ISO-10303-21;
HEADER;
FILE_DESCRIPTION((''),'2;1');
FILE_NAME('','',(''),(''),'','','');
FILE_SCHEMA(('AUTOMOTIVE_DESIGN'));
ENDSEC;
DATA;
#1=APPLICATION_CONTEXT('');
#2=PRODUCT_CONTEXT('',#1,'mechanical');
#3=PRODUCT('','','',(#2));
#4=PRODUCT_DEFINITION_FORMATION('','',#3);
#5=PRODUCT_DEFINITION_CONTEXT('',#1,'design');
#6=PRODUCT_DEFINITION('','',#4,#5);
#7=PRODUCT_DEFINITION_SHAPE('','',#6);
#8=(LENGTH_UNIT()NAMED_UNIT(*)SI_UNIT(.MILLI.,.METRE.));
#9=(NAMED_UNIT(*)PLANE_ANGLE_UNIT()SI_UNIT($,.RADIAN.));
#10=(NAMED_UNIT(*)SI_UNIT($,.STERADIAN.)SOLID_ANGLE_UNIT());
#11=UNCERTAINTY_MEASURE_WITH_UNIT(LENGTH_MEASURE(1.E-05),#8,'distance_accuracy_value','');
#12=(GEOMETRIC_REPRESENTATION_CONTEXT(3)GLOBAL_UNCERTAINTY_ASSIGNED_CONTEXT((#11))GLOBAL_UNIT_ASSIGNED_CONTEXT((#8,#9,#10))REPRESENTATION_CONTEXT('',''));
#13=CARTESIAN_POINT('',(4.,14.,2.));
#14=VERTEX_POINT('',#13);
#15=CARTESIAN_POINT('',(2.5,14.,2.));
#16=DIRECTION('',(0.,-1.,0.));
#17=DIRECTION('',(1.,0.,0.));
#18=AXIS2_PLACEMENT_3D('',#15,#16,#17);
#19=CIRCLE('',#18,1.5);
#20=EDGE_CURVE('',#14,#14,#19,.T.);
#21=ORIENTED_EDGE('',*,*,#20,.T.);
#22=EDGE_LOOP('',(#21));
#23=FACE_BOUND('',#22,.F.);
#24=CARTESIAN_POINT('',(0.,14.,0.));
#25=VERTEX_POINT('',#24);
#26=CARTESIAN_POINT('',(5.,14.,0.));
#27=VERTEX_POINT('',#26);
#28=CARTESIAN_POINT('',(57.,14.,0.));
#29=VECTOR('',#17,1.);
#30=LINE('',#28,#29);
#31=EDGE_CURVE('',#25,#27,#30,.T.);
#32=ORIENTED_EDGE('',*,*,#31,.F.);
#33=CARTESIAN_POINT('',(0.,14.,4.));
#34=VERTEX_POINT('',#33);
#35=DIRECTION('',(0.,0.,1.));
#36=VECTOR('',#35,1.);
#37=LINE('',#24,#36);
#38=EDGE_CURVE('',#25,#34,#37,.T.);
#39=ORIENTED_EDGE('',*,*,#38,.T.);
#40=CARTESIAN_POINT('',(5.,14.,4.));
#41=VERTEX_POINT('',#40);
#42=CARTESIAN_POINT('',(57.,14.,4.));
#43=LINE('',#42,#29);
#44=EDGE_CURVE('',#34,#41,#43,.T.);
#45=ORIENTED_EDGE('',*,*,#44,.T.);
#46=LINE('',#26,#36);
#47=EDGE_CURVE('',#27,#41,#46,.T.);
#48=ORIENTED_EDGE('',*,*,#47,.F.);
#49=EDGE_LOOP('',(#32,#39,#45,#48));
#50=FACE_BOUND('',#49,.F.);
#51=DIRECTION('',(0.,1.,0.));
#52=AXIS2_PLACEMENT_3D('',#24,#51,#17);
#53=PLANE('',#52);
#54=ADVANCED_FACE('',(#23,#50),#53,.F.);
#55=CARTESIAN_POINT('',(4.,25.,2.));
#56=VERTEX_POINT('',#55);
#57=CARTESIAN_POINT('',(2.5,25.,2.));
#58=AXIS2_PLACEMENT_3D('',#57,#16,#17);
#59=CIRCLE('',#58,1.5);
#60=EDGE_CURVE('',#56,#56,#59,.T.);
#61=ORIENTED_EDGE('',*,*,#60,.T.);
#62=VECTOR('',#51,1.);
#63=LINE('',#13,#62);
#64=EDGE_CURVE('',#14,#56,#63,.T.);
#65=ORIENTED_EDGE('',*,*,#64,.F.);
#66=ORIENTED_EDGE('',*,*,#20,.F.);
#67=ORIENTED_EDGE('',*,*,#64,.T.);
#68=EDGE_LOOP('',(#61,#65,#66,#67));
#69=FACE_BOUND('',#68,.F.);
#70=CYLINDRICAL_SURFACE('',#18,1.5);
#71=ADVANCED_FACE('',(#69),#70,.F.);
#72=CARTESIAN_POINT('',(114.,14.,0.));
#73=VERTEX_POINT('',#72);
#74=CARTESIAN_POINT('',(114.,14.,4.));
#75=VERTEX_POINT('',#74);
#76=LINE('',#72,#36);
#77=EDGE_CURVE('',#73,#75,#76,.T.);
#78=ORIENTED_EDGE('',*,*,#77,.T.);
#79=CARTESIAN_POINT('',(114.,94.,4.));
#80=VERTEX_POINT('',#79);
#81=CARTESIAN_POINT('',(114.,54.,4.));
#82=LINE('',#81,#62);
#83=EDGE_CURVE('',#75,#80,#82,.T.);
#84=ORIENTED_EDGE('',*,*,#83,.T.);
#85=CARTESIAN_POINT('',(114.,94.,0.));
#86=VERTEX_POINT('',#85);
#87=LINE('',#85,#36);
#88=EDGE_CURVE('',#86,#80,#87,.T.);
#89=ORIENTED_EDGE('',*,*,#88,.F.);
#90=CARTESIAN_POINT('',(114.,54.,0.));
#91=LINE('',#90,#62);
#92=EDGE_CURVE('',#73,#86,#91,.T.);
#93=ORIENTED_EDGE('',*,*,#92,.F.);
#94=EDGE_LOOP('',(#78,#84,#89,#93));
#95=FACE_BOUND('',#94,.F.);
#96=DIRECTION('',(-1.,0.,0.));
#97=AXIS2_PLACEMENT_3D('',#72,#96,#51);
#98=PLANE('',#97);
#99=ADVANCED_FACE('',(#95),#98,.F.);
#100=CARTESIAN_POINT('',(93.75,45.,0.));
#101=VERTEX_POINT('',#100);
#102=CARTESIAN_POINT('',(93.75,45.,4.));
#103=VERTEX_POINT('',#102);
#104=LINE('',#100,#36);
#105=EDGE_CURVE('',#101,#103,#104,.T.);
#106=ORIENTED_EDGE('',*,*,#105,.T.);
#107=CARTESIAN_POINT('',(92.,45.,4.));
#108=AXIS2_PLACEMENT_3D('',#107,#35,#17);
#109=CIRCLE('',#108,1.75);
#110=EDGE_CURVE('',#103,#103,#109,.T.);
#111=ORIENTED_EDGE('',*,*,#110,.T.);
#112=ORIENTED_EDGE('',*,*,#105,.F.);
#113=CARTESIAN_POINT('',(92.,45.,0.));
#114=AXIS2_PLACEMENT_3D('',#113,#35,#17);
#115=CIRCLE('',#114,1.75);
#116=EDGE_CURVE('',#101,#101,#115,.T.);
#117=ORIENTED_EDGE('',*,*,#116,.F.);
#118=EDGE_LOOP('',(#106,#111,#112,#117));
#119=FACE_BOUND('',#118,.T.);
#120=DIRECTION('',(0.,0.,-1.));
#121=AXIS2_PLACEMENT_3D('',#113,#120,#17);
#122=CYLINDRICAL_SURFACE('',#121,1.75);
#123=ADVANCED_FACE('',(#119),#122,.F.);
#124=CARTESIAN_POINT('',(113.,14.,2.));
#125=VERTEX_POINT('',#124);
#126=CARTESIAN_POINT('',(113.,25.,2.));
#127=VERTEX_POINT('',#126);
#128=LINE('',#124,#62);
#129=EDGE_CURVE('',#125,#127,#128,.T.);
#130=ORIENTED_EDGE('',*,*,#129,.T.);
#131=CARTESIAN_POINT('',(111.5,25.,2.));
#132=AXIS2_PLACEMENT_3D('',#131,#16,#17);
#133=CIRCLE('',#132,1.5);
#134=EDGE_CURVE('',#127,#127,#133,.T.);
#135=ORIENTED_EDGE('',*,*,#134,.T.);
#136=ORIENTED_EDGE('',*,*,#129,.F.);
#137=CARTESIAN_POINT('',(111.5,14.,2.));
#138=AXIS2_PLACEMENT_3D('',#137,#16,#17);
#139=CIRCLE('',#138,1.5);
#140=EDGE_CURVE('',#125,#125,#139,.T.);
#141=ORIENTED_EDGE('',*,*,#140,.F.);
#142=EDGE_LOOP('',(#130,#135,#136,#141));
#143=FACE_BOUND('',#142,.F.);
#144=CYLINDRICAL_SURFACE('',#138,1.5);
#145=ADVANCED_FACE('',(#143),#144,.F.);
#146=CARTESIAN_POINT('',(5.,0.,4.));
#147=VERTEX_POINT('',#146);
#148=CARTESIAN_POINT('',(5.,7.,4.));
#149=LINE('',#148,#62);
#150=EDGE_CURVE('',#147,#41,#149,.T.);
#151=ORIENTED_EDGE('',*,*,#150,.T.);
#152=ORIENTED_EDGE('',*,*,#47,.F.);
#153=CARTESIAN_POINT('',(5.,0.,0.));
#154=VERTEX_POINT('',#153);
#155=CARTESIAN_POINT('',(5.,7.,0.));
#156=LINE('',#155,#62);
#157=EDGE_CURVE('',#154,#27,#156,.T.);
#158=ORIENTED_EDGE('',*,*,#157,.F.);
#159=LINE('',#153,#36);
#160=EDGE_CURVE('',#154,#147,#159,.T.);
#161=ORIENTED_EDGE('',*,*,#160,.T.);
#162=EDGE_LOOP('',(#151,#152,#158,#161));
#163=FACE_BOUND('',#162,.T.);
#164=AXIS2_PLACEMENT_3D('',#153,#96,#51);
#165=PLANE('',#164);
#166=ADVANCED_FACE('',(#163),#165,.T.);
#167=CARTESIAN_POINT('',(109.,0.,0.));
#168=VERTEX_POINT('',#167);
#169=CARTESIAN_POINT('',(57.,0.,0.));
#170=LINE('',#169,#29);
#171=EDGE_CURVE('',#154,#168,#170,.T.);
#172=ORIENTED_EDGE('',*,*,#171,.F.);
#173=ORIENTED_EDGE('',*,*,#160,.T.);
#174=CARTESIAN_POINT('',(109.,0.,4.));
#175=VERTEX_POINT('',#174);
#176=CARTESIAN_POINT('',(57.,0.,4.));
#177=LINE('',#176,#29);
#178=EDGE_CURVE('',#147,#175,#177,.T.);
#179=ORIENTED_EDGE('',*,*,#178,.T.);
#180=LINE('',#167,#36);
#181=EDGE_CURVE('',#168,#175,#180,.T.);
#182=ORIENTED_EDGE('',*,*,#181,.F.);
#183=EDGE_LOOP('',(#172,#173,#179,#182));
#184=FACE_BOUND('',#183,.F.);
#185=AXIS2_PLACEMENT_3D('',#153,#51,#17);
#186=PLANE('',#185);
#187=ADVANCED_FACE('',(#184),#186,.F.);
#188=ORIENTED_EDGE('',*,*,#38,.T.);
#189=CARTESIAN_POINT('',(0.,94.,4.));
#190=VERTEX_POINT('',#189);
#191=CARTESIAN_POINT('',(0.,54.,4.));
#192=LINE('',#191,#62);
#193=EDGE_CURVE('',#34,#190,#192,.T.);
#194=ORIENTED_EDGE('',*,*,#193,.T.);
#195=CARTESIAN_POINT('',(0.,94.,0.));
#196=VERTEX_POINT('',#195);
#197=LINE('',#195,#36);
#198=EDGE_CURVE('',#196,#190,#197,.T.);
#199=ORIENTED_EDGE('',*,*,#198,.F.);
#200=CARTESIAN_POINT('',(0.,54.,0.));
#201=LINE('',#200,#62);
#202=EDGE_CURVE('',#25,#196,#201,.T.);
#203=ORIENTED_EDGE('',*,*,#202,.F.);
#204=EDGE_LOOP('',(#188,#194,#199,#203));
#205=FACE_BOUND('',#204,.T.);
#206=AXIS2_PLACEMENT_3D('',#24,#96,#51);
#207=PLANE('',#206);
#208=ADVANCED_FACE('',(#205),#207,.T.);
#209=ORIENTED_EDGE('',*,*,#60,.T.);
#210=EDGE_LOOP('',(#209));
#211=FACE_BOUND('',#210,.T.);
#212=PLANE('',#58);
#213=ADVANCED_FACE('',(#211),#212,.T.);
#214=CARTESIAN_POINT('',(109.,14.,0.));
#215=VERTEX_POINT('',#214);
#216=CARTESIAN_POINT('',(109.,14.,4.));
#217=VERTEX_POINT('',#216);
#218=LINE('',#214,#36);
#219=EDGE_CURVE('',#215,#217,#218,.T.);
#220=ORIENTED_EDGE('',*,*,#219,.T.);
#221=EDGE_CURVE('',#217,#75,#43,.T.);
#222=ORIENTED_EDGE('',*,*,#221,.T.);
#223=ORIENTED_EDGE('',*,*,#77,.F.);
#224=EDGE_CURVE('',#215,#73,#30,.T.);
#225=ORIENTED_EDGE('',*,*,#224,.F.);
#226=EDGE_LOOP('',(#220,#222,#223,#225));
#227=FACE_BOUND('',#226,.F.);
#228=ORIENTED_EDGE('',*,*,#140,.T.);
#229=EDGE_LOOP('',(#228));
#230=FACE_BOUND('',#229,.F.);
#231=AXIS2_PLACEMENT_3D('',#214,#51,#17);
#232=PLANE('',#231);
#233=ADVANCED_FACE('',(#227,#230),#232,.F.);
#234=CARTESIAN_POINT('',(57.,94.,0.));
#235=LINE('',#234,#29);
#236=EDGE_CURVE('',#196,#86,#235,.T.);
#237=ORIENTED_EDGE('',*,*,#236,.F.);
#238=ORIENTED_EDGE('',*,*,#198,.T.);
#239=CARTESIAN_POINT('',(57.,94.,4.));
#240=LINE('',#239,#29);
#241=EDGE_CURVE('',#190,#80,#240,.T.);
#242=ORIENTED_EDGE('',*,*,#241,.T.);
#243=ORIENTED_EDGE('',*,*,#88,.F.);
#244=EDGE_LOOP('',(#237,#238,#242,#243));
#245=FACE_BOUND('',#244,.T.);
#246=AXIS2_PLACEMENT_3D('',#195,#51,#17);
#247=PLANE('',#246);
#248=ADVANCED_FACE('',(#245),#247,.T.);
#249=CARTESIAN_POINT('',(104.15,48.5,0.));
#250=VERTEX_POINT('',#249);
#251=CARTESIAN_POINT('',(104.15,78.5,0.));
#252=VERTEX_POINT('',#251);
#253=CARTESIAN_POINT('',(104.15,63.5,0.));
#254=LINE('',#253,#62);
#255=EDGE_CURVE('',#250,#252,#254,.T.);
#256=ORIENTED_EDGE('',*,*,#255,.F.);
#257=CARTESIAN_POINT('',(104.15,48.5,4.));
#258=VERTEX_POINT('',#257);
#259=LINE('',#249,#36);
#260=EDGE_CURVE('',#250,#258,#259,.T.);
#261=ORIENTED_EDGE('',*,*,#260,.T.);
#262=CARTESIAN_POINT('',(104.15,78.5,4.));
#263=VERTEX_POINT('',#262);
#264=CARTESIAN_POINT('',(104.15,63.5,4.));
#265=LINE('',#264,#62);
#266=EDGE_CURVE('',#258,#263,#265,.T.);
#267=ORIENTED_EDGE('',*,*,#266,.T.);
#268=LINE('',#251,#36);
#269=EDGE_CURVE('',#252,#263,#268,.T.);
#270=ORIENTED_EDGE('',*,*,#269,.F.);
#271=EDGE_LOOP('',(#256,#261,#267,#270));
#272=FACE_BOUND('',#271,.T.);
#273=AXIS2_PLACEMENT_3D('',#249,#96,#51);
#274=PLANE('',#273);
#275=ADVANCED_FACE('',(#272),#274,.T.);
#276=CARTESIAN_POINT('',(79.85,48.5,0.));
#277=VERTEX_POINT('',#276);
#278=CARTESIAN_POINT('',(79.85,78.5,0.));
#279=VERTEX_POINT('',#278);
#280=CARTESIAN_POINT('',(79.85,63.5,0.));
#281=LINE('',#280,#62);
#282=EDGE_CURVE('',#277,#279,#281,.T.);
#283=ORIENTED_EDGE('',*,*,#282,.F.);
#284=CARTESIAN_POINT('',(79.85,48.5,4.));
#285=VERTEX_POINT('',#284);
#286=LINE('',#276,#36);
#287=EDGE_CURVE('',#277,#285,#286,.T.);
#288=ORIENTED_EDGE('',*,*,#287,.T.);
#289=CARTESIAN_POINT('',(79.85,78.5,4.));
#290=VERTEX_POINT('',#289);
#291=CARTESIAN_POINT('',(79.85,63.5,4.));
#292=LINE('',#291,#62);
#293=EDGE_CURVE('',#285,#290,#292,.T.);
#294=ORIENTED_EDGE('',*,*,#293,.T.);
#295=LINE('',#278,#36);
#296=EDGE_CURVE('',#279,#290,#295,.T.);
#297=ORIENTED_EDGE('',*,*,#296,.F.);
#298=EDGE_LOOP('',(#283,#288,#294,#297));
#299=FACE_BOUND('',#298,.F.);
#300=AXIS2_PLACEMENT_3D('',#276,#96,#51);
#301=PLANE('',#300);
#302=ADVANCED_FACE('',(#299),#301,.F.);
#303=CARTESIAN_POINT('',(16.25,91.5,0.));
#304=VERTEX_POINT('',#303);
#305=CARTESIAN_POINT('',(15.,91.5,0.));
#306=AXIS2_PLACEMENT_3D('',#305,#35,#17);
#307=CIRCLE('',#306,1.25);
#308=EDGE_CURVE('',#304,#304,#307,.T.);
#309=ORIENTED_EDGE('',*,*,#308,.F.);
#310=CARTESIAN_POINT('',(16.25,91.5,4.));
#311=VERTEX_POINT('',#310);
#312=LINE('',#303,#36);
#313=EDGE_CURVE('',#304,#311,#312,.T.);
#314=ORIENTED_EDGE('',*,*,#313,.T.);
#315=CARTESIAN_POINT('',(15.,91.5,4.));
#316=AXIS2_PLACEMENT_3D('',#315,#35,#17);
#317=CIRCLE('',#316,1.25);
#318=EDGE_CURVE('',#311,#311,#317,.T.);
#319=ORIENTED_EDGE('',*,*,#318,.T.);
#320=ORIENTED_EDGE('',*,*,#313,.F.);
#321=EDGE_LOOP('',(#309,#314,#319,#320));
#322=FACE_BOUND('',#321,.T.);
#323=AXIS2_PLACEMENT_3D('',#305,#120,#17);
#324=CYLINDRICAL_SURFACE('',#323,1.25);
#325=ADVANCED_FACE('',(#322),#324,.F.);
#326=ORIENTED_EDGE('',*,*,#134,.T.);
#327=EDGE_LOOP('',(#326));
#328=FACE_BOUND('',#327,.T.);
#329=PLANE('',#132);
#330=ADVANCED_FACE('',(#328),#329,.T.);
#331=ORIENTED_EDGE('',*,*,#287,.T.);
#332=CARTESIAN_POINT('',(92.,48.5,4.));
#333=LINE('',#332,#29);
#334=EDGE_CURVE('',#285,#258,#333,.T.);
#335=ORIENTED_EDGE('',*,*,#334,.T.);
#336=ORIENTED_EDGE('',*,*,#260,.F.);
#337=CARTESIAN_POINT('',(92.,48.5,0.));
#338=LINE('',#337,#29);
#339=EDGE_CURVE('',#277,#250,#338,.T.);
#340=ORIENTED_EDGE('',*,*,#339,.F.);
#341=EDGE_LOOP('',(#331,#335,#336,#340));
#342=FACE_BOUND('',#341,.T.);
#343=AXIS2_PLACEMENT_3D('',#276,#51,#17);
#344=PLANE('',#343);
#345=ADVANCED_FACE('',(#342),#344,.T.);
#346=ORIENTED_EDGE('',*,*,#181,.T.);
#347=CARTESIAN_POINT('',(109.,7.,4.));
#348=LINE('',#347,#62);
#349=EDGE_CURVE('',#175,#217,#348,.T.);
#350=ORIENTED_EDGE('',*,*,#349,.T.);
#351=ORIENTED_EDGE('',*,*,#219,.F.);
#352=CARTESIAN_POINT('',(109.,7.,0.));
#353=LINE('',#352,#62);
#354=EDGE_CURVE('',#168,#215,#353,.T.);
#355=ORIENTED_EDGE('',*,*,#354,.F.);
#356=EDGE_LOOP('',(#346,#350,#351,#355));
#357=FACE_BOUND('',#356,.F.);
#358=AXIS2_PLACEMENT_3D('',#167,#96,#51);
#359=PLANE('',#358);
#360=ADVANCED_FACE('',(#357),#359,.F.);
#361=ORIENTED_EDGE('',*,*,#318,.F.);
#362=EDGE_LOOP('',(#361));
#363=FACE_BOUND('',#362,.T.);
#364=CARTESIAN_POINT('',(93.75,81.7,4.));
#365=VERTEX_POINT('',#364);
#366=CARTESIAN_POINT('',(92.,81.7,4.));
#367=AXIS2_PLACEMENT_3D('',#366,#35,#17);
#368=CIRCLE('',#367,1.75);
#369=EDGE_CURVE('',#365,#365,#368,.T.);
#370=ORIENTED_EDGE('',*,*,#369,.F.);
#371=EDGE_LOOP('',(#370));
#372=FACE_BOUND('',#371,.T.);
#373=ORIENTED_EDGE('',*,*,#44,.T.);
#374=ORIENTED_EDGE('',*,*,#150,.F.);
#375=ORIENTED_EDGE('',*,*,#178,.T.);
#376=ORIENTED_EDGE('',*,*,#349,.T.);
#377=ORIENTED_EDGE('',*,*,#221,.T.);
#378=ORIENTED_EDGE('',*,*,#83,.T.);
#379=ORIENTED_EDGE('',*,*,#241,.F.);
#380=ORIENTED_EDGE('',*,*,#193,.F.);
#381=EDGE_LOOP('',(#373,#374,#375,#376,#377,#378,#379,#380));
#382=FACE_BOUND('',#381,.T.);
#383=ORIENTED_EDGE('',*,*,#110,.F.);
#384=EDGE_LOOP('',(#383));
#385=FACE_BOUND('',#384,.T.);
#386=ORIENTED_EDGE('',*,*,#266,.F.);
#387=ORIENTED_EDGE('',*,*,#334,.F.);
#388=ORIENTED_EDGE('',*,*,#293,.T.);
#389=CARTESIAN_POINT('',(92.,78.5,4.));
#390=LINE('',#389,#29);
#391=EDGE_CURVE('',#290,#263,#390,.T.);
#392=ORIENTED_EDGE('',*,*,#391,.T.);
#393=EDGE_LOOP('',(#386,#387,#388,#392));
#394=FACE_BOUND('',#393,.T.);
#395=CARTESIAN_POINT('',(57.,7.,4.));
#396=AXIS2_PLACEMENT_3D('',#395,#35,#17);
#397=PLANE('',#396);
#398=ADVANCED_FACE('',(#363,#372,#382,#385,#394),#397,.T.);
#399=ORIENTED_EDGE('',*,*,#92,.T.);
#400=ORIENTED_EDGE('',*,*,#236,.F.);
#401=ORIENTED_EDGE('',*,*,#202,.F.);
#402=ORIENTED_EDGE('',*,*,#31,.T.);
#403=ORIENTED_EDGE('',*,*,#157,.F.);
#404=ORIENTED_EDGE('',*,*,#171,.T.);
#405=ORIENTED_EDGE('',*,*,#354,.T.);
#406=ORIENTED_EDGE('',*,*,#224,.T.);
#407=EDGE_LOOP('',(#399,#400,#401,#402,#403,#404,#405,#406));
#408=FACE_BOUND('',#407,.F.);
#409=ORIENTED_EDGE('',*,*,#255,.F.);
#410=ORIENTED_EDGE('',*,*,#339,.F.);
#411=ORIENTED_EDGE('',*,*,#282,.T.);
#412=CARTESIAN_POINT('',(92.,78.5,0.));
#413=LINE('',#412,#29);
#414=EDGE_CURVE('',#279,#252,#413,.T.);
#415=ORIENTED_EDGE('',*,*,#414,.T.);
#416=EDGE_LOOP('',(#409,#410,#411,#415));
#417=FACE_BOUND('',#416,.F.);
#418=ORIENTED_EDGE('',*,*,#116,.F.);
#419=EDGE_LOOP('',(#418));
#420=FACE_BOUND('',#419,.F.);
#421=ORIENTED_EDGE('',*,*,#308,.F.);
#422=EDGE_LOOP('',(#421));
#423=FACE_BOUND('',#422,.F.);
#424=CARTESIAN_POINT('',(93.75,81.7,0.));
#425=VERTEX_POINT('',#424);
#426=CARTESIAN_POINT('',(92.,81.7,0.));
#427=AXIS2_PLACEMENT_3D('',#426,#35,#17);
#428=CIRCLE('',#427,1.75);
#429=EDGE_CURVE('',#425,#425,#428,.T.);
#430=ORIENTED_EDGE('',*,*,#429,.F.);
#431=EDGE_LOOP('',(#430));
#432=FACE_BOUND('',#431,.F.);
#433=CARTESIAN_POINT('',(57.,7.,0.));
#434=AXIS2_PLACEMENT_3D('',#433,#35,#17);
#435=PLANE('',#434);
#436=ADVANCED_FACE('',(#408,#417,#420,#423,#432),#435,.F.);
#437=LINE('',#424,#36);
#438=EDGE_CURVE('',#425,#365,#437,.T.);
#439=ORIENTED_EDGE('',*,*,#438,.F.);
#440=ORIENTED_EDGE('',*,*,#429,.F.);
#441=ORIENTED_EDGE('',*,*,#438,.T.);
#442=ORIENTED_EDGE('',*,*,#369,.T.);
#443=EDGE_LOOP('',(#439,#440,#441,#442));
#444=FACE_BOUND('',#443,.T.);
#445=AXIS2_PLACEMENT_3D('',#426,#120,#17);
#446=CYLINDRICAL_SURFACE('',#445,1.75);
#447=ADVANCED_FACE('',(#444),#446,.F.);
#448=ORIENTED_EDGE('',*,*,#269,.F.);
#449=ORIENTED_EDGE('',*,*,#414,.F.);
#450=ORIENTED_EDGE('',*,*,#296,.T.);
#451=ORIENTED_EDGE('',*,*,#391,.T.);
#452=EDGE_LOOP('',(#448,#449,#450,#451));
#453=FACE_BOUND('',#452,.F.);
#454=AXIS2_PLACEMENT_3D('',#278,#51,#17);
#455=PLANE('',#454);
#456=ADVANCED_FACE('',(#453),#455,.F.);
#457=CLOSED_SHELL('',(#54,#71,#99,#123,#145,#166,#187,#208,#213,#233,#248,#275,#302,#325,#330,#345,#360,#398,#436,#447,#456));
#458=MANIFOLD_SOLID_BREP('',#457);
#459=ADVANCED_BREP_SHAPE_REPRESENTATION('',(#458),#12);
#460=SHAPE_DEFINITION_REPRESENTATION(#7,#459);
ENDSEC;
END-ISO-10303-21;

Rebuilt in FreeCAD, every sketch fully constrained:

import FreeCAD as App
import Part
import Sketcher


def add_polygon(sketch, points):
    """Adds a closed chain of lines whose ends are joined by coincident constraints."""
    first, n = sketch.GeometryCount, len(points)
    for a, b in zip(points, points[1:] + points[:1]):
        sketch.addGeometry(Part.LineSegment(App.Vector(*a, 0), App.Vector(*b, 0)), False)
    for i in range(n):
        sketch.addConstraint(Sketcher.Constraint("Coincident", first + i, 2, first + (i + 1) % n, 1))

doc = App.newDocument("Part")
body = doc.addObject("PartDesign::Body", "Body")

# Sketch on XY plane
sketch1 = doc.addObject("Sketcher::SketchObject", "Sketch")
body.addObject(sketch1)
sketch1.AttachmentSupport = (doc.XY_Plane, [""])
sketch1.MapMode = "FlatFace"
add_polygon(sketch1, [(5, 14), (5, 0), (109, 0), (109, 14), (114, 14), (114, 94), (0, 94), (0, 14)])  # lines 0-7
sketch1.addGeometry(Part.Circle(App.Vector(92, 45, 0), App.Vector(0, 0, 1), 1.8), False)  # 8
add_polygon(sketch1, [(104.2, 48.5), (79.8, 48.5), (79.8, 78.5), (104.2, 78.5)])  # lines 9-12
sketch1.addGeometry(Part.Circle(App.Vector(15, 91.5, 0), App.Vector(0, 0, 1), 1.2), False)  # 13
sketch1.addGeometry(Part.Circle(App.Vector(92, 81.7, 0), App.Vector(0, 0, 1), 1.8), False)  # 14
sketch1.addConstraint([
    Sketcher.Constraint("Vertical", 0),
    Sketcher.Constraint("Horizontal", 1),
    Sketcher.Constraint("Vertical", 2),
    Sketcher.Constraint("Horizontal", 3),
    Sketcher.Constraint("Vertical", 4),
    Sketcher.Constraint("Horizontal", 5),
    Sketcher.Constraint("Vertical", 6),
    Sketcher.Constraint("Horizontal", 7),
    Sketcher.Constraint("Horizontal", 9),
    Sketcher.Constraint("Vertical", 10),
    Sketcher.Constraint("Horizontal", 11),
    Sketcher.Constraint("Vertical", 12),
    Sketcher.Constraint("Equal", 8, 14),
    Sketcher.Constraint("PointOnObject", 0, 2, -1),
    Sketcher.Constraint("PointOnObject", 5, 2, -2),
    Sketcher.Constraint("Horizontal", 3, 2, 6, 2),
    Sketcher.Constraint("Vertical", 8, 3, 14, 3),
    Sketcher.Constraint("Equal", 3, 7),
    Sketcher.Constraint("Diameter", 8, 3.5),
    Sketcher.Constraint("Diameter", 13, 2.5),
    Sketcher.Constraint("DistanceX", 1, 1, 1, 2, 104.0),
    Sketcher.Constraint("DistanceX", 3, 1, 3, 2, 5.0),
    Sketcher.Constraint("DistanceY", 0, 2, 0, 1, 14.0),
    Sketcher.Constraint("DistanceY", 4, 1, 4, 2, 80.0),
    Sketcher.Constraint("DistanceY", 10, 1, 10, 2, 30.0),
    Sketcher.Constraint("DistanceX", 9, 2, 9, 1, 24.3),
    Sketcher.Constraint("DistanceX", -1, 1, 8, 3, 92.0),
    Sketcher.Constraint("DistanceY", -1, 1, 8, 3, 45.0),
    Sketcher.Constraint("DistanceX", -1, 1, 13, 3, 15.0),
    Sketcher.Constraint("DistanceY", 10, 2, 13, 3, 13.0),
    Sketcher.Constraint("DistanceY", -1, 1, 13, 3, 91.5),
    Sketcher.Constraint("DistanceY", -1, 1, 14, 3, 81.7),
    Sketcher.Constraint("DistanceX", -1, 1, 9, 2, 79.85),
])
pad1 = doc.addObject("PartDesign::Pad", "Pad")
body.addObject(pad1)
pad1.Profile = sketch1
pad1.Length = 4

# Sketch on XZ plane
sketch2 = doc.addObject("Sketcher::SketchObject", "Sketch001")
body.addObject(sketch2)
sketch2.AttachmentSupport = (doc.XZ_Plane, [""])
sketch2.MapMode = "FlatFace"
sketch2.AttachmentOffset = App.Placement(App.Vector(0, 0, -14), App.Rotation())
sketch2.addGeometry([
    Part.Circle(App.Vector(2.5, 2, 0), App.Vector(0, 0, 1), 1.5),
    Part.Circle(App.Vector(111.5, 2, 0), App.Vector(0, 0, 1), 1.5),
], False)
sketch2.addConstraint([
    Sketcher.Constraint("Equal", 0, 1),
    Sketcher.Constraint("Horizontal", 0, 3, 1, 3),
    Sketcher.Constraint("Diameter", 0, 3.0),
    Sketcher.Constraint("DistanceY", -1, 1, 0, 3, 2.0),
    Sketcher.Constraint("DistanceX", 0, 3, 1, 3, 109.0),
    Sketcher.Constraint("DistanceX", -1, 1, 0, 3, 2.5),
])
pocket1 = doc.addObject("PartDesign::Pocket", "Pocket")
body.addObject(pocket1)
pocket1.Profile = sketch2
pocket1.Length = 11

doc.recompute()
